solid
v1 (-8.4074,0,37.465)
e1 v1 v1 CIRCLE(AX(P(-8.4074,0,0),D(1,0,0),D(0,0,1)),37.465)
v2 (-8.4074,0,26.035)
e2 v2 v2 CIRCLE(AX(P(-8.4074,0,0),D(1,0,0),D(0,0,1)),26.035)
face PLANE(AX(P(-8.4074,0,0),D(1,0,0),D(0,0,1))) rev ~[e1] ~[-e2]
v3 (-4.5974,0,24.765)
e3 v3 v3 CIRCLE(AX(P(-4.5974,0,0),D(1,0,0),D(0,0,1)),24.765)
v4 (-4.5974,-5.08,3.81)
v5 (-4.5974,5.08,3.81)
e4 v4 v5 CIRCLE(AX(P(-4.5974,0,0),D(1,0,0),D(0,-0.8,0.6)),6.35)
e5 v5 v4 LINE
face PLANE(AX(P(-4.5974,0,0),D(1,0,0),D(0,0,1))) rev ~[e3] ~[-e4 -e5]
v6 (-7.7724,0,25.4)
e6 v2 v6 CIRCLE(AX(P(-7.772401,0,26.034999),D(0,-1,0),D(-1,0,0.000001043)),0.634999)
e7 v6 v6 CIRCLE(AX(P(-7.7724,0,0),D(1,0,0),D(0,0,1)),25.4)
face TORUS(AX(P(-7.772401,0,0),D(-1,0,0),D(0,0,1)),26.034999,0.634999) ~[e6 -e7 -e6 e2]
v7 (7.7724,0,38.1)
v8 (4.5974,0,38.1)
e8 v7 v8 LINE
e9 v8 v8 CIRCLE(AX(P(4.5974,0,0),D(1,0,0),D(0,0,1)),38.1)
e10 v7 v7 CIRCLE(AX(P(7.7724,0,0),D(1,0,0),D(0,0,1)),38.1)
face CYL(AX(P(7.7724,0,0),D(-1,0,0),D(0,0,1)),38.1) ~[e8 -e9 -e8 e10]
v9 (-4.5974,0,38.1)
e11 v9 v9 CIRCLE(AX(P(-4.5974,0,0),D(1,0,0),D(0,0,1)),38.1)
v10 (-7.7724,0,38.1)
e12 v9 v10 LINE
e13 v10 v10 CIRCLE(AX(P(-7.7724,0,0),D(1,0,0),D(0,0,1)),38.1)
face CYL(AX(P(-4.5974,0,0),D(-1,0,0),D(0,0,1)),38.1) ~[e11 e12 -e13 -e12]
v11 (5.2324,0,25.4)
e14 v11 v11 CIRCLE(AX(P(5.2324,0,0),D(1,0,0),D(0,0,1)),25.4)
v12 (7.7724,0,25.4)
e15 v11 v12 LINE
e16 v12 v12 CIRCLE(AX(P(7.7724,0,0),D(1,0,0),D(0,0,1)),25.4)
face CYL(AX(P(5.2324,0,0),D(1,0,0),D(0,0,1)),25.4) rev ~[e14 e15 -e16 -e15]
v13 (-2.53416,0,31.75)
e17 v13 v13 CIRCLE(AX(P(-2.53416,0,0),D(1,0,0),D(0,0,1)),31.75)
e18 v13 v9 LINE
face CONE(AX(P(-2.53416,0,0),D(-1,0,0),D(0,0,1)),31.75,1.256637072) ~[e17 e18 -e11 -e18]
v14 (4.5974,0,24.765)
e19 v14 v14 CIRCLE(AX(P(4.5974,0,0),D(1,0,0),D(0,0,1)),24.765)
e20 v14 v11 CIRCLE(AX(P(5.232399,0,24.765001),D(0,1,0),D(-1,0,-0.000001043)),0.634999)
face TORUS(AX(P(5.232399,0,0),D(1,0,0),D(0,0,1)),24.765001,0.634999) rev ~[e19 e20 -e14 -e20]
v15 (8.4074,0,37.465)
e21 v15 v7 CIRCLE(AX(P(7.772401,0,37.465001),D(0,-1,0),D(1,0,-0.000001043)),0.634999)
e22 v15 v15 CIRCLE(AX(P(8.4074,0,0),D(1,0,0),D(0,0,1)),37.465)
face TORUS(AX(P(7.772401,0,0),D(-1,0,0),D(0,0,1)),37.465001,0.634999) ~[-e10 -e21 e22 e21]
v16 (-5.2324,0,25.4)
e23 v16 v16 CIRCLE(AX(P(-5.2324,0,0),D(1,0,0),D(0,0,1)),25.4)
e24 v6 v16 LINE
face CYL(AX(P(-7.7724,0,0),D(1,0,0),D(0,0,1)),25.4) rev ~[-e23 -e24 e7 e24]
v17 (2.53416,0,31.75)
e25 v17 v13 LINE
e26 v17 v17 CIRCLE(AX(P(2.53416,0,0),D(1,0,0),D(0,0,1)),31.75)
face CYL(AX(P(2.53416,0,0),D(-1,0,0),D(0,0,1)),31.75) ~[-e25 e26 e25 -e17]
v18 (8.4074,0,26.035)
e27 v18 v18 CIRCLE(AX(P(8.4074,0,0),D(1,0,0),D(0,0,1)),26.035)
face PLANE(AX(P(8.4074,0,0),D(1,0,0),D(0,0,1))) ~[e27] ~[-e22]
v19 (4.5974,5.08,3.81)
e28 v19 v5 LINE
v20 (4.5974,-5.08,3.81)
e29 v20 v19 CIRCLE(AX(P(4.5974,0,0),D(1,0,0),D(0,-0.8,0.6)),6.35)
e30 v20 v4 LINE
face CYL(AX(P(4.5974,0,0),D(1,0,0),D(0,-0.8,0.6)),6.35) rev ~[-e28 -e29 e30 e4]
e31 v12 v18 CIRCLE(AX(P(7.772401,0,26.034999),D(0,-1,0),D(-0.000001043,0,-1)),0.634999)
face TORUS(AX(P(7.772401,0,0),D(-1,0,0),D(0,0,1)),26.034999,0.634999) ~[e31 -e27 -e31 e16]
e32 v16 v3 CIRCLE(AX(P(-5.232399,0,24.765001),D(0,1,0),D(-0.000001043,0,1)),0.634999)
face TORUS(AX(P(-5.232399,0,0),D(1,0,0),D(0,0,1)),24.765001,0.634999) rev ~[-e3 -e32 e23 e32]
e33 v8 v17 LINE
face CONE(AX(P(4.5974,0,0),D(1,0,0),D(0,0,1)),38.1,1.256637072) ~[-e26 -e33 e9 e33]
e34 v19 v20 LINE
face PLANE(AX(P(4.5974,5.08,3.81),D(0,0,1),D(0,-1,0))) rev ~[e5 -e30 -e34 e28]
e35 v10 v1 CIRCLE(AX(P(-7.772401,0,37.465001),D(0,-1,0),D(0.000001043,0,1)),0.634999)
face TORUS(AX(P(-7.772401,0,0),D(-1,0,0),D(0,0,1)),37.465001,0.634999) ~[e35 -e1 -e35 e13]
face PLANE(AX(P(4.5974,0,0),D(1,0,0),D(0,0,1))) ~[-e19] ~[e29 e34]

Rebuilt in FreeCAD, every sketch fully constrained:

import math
import FreeCAD as App
import Part
import Sketcher

V = App.Vector
Q = App.Units.Quantity

doc = App.newDocument("Part")
params = doc.addObject("Spreadsheet::Sheet", "Params")
for row, (alias, value) in enumerate([
    ("sketch1_width", "0.1 in"),
    ("sketch1_radius", "0.025 in"),
    ("sketch1_height", "0.45 in"),
    ("sketch1_width2", "0.362 in"),
    ("revolution_angle", "360 deg"),
    ("sketch2_radius", "0.25 in"),
    ("sketch2_width", "0.4 in"),
], start=1):
    params.set(f"A{row}", alias)
    params.set(f"B{row}", "=" + value)
    params.setAlias(f"B{row}", alias)

body = doc.addObject("PartDesign::Body", "Body")

# Sketch on XZ plane
sketch1 = body.newObject("Sketcher::SketchObject", "Sketch")
sketch1.AttachmentSupport = (doc.getObject("XZ_Plane"), [""])
sketch1.MapMode = "FlatFace"
sketch1.addGeometry(Part.LineSegment(V(-4.6, 24.8, 0), V(-4.6, 0, 0)), False)
sketch1.addGeometry(Part.LineSegment(V(-4.6, 0, 0), V(4.6, 0, 0)), False)
sketch1.addGeometry(Part.LineSegment(V(4.6, 0, 0), V(4.6, 24.8, 0)), False)
sketch1.addGeometry(Part.ArcOfCircle(Part.Circle(V(5.2, 24.8, 0), V(0, 0, 1), 0.6), math.radians(90), math.radians(180)), False)
sketch1.addGeometry(Part.LineSegment(V(5.2, 25.4, 0), V(7.8, 25.4, 0)), False)
sketch1.addGeometry(Part.ArcOfCircle(Part.Circle(V(7.8, 26, 0), V(0, 0, 1), 0.6), math.radians(-90), math.radians(0)), False)
sketch1.addGeometry(Part.LineSegment(V(8.4, 26, 0), V(8.4, 37.5, 0)), False)
sketch1.addGeometry(Part.ArcOfCircle(Part.Circle(V(7.8, 37.5, 0), V(0, 0, 1), 0.6), math.radians(0), math.radians(90)), False)
sketch1.addGeometry(Part.LineSegment(V(7.8, 38.1, 0), V(4.6, 38.1, 0)), False)
sketch1.addGeometry(Part.LineSegment(V(4.6, 38.1, 0), V(2.5, 31.8, 0)), False)
sketch1.addGeometry(Part.LineSegment(V(2.5, 31.8, 0), V(-2.5, 31.8, 0)), False)
sketch1.addGeometry(Part.LineSegment(V(-2.5, 31.8, 0), V(-4.6, 38.1, 0)), False)
sketch1.addGeometry(Part.LineSegment(V(-4.6, 38.1, 0), V(-7.8, 38.1, 0)), False)
sketch1.addGeometry(Part.ArcOfCircle(Part.Circle(V(-7.8, 37.5, 0), V(0, 0, 1), 0.6), math.radians(90), math.radians(180)), False)
sketch1.addGeometry(Part.LineSegment(V(-8.4, 37.5, 0), V(-8.4, 26, 0)), False)
sketch1.addGeometry(Part.ArcOfCircle(Part.Circle(V(-7.8, 26, 0), V(0, 0, 1), 0.6), math.radians(180), math.radians(270)), False)
sketch1.addGeometry(Part.LineSegment(V(-7.8, 25.4, 0), V(-5.2, 25.4, 0)), False)
sketch1.addGeometry(Part.ArcOfCircle(Part.Circle(V(-5.2, 24.8, 0), V(0, 0, 1), 0.6), math.radians(0), math.radians(90)), False)
sketch1.addConstraint(Sketcher.Constraint("Coincident", 0, 2, 1, 1))
sketch1.addConstraint(Sketcher.Constraint("Coincident", 1, 2, 2, 1))
sketch1.addConstraint(Sketcher.Constraint("Tangent", 2, 2, 3, 2))
sketch1.addConstraint(Sketcher.Constraint("Tangent", 3, 1, 4, 1))
sketch1.addConstraint(Sketcher.Constraint("Tangent", 4, 2, 5, 1))
sketch1.addConstraint(Sketcher.Constraint("Tangent", 5, 2, 6, 1))
sketch1.addConstraint(Sketcher.Constraint("Tangent", 6, 2, 7, 1))
sketch1.addConstraint(Sketcher.Constraint("Tangent", 7, 2, 8, 1))
sketch1.addConstraint(Sketcher.Constraint("Coincident", 8, 2, 9, 1))
sketch1.addConstraint(Sketcher.Constraint("Coincident", 9, 2, 10, 1))
sketch1.addConstraint(Sketcher.Constraint("Coincident", 10, 2, 11, 1))
sketch1.addConstraint(Sketcher.Constraint("Coincident", 11, 2, 12, 1))
sketch1.addConstraint(Sketcher.Constraint("Tangent", 12, 2, 13, 1))
sketch1.addConstraint(Sketcher.Constraint("Tangent", 13, 2, 14, 1))
sketch1.addConstraint(Sketcher.Constraint("Tangent", 14, 2, 15, 1))
sketch1.addConstraint(Sketcher.Constraint("Tangent", 15, 2, 16, 1))
sketch1.addConstraint(Sketcher.Constraint("Tangent", 16, 2, 17, 2))
sketch1.addConstraint(Sketcher.Constraint("Tangent", 17, 1, 0, 1))
sketch1.addConstraint(Sketcher.Constraint("Vertical", 0))
sketch1.addConstraint(Sketcher.Constraint("Horizontal", 1))
sketch1.addConstraint(Sketcher.Constraint("Vertical", 2))
sketch1.addConstraint(Sketcher.Constraint("Horizontal", 4))
sketch1.addConstraint(Sketcher.Constraint("Vertical", 6))
sketch1.addConstraint(Sketcher.Constraint("Horizontal", 8))
sketch1.addConstraint(Sketcher.Constraint("Horizontal", 10))
sketch1.addConstraint(Sketcher.Constraint("Horizontal", 12))
sketch1.addConstraint(Sketcher.Constraint("Vertical", 14))
sketch1.addConstraint(Sketcher.Constraint("Horizontal", 16))
sketch1.addConstraint(Sketcher.Constraint("Equal", 3, 5))
sketch1.addConstraint(Sketcher.Constraint("Equal", 5, 7))
sketch1.addConstraint(Sketcher.Constraint("Equal", 7, 13))
sketch1.addConstraint(Sketcher.Constraint("Equal", 13, 15))
sketch1.addConstraint(Sketcher.Constraint("Equal", 15, 17))
sketch1.addConstraint(Sketcher.Constraint("Symmetric", 0, 2, 1, 2, -1, 1))
sketch1.addConstraint(Sketcher.Constraint("Symmetric", 7, 3, 13, 3, -2))
sketch1.addConstraint(Sketcher.Constraint("Horizontal", 5, 3, 15, 3))
sketch1.addConstraint(Sketcher.Constraint("Vertical", 2, 2, 8, 2))
sketch1.addConstraint(Sketcher.Constraint("Vertical", 0, 2, 11, 2))
sketch1.addConstraint(Sketcher.Constraint("Equal", 9, 11))
sketch1.addConstraint(Sketcher.Constraint("DistanceX", 4, 1, 4, 2, Q("0.1 in")))
sketch1.addConstraint(Sketcher.Constraint("DistanceY", -1, 1, 3, 1, Q("1 in")))
sketch1.addConstraint(Sketcher.Constraint("Angle", 9, Q("-107.999999 deg")))
sketch1.addConstraint(Sketcher.Constraint("Radius", 3, Q("0.025 in")))
sketch1.addConstraint(Sketcher.Constraint("DistanceY", 6, 1, 6, 2, Q("0.45 in")))
sketch1.addConstraint(Sketcher.Constraint("DistanceX", 1, 1, 1, 2, Q("0.362 in")))
sketch1.addConstraint(Sketcher.Constraint("DistanceY", -1, 1, 9, 2, Q("1.25 in")))
sketch1.setExpression("Constraints[39]", "Params.sketch1_width")
sketch1.setExpression("Constraints[42]", "Params.sketch1_radius")
sketch1.setExpression("Constraints[43]", "Params.sketch1_height")
sketch1.setExpression("Constraints[44]", "Params.sketch1_width2")
revolution = body.newObject("PartDesign::Revolution", "Revolution")
revolution.Profile = sketch1
revolution.ReferenceAxis = (sketch1, ["H_Axis"])
revolution.setExpression("Angle", "Params.revolution_angle")

# Sketch on YZ plane
sketch2 = body.newObject("Sketcher::SketchObject", "Sketch001")
sketch2.AttachmentSupport = (doc.getObject("YZ_Plane"), [""])
sketch2.MapMode = "FlatFace"
sketch2.AttachmentOffset = App.Placement(V(0, 0, 0.181 * 25.4), App.Rotation())
sketch2.addGeometry(Part.LineSegment(V(5, 4, 0), V(-5, 4, 0)), False)
sketch2.addGeometry(Part.ArcOfCircle(Part.Circle(V(0, 0, 0), V(0, 0, 1), 6), math.radians(143), math.radians(397)), False)
sketch2.addConstraint(Sketcher.Constraint("Coincident", 0, 1, 1, 2))
sketch2.addConstraint(Sketcher.Constraint("Coincident", 1, 1, 0, 2))
sketch2.addConstraint(Sketcher.Constraint("Horizontal", 0))
sketch2.addConstraint(Sketcher.Constraint("Coincident", 1, 3, -1, 1))
sketch2.addConstraint(Sketcher.Constraint("Radius", 1, Q("0.25 in")))
sketch2.addConstraint(Sketcher.Constraint("DistanceX", 0, 2, 0, 1, Q("0.4 in")))
sketch2.setExpression("Constraints[4]", "Params.sketch2_radius")
sketch2.setExpression("Constraints[5]", "Params.sketch2_width")
pocket1 = body.newObject("PartDesign::Pocket", "Pocket")
pocket1.Profile = sketch2
pocket1.Type = "ThroughAll"

doc.recompute()
